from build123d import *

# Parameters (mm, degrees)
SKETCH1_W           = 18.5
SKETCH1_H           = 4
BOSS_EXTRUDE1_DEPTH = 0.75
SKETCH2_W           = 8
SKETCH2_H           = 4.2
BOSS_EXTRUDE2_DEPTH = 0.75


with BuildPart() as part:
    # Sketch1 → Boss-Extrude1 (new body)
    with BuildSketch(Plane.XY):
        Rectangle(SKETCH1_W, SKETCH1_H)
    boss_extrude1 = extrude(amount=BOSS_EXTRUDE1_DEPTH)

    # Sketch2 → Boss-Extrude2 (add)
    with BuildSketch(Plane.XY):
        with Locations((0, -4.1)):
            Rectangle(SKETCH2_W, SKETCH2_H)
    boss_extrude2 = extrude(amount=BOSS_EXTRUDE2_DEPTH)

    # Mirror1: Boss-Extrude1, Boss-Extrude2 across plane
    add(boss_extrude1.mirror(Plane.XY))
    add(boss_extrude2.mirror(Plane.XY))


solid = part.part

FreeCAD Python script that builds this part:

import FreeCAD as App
import Part
import Sketcher
from FreeCAD import Vector
Q = App.Units.Quantity

doc = App.newDocument("Part")
body = doc.addObject("PartDesign::Body", "Body")

sketch1 = doc.addObject("Sketcher::SketchObject", "Sketch")
body.addObject(sketch1)
sketch1.AttachmentSupport = (doc.XY_Plane, [""])
sketch1.MapMode = "FlatFace"
sketch1.addGeometry([
    Part.LineSegment(Vector(-9.2, 2, 0), Vector(-9.2, -2, 0)),
    Part.LineSegment(Vector(-9.2, -2, 0), Vector(9.2, -2, 0)),
    Part.LineSegment(Vector(9.2, -2, 0), Vector(9.2, 2, 0)),
    Part.LineSegment(Vector(9.2, 2, 0), Vector(-9.2, 2, 0)),
], False)
sketch1.addConstraint([
    Sketcher.Constraint("Coincident", 0, 2, 1, 1),
    Sketcher.Constraint("Coincident", 1, 2, 2, 1),
    Sketcher.Constraint("Coincident", 2, 2, 3, 1),
    Sketcher.Constraint("Coincident", 3, 2, 0, 1),
    Sketcher.Constraint("Vertical", 0),
    Sketcher.Constraint("Horizontal", 1),
    Sketcher.Constraint("Vertical", 2),
    Sketcher.Constraint("Horizontal", 3),
    Sketcher.Constraint("Symmetric", 0, 2, 2, 2, -1, 1),
    Sketcher.Constraint("DistanceY", 0, 2, 0, 1, Q("4 mm")),
    Sketcher.Constraint("DistanceX", 1, 1, 1, 2, Q("18.5 mm")),
])
pad1 = doc.addObject("PartDesign::Pad", "Pad")
body.addObject(pad1)
pad1.Profile = sketch1
pad1.Length = 0.75

sketch2 = doc.addObject("Sketcher::SketchObject", "Sketch001")
body.addObject(sketch2)
sketch2.AttachmentSupport = (doc.XY_Plane, [""])
sketch2.MapMode = "FlatFace"
sketch2.addGeometry([
    Part.LineSegment(Vector(-4, -2, 0), Vector(-4, -6.2, 0)),
    Part.LineSegment(Vector(-4, -6.2, 0), Vector(4, -6.2, 0)),
    Part.LineSegment(Vector(4, -6.2, 0), Vector(4, -2, 0)),
    Part.LineSegment(Vector(4, -2, 0), Vector(-4, -2, 0)),
], False)
sketch2.addConstraint([
    Sketcher.Constraint("Coincident", 0, 2, 1, 1),
    Sketcher.Constraint("Coincident", 1, 2, 2, 1),
    Sketcher.Constraint("Coincident", 2, 2, 3, 1),
    Sketcher.Constraint("Coincident", 3, 2, 0, 1),
    Sketcher.Constraint("Vertical", 0),
    Sketcher.Constraint("Horizontal", 1),
    Sketcher.Constraint("Vertical", 2),
    Sketcher.Constraint("Horizontal", 3),
    Sketcher.Constraint("DistanceX", 1, 1, 1, 2, Q("8 mm")),
    Sketcher.Constraint("DistanceY", 0, 2, 0, 1, Q("4.2 mm")),
    Sketcher.Constraint("DistanceX", 0, 2, -1, 1, Q("4 mm")),
    Sketcher.Constraint("DistanceY", 2, 2, -1, 1, Q("2 mm")),
])
pad2 = doc.addObject("PartDesign::Pad", "Pad001")
body.addObject(pad2)
pad2.Profile = sketch2
pad2.Length = 0.75
doc.recompute()

mirrored = doc.addObject("PartDesign::Mirrored", "Mirrored")
body.addObject(mirrored)
mirrored.Originals = [pad1, pad2]
mirrored.MirrorPlane = (doc.XY_Plane, [""])
body.Tip = mirrored

doc.recompute()
